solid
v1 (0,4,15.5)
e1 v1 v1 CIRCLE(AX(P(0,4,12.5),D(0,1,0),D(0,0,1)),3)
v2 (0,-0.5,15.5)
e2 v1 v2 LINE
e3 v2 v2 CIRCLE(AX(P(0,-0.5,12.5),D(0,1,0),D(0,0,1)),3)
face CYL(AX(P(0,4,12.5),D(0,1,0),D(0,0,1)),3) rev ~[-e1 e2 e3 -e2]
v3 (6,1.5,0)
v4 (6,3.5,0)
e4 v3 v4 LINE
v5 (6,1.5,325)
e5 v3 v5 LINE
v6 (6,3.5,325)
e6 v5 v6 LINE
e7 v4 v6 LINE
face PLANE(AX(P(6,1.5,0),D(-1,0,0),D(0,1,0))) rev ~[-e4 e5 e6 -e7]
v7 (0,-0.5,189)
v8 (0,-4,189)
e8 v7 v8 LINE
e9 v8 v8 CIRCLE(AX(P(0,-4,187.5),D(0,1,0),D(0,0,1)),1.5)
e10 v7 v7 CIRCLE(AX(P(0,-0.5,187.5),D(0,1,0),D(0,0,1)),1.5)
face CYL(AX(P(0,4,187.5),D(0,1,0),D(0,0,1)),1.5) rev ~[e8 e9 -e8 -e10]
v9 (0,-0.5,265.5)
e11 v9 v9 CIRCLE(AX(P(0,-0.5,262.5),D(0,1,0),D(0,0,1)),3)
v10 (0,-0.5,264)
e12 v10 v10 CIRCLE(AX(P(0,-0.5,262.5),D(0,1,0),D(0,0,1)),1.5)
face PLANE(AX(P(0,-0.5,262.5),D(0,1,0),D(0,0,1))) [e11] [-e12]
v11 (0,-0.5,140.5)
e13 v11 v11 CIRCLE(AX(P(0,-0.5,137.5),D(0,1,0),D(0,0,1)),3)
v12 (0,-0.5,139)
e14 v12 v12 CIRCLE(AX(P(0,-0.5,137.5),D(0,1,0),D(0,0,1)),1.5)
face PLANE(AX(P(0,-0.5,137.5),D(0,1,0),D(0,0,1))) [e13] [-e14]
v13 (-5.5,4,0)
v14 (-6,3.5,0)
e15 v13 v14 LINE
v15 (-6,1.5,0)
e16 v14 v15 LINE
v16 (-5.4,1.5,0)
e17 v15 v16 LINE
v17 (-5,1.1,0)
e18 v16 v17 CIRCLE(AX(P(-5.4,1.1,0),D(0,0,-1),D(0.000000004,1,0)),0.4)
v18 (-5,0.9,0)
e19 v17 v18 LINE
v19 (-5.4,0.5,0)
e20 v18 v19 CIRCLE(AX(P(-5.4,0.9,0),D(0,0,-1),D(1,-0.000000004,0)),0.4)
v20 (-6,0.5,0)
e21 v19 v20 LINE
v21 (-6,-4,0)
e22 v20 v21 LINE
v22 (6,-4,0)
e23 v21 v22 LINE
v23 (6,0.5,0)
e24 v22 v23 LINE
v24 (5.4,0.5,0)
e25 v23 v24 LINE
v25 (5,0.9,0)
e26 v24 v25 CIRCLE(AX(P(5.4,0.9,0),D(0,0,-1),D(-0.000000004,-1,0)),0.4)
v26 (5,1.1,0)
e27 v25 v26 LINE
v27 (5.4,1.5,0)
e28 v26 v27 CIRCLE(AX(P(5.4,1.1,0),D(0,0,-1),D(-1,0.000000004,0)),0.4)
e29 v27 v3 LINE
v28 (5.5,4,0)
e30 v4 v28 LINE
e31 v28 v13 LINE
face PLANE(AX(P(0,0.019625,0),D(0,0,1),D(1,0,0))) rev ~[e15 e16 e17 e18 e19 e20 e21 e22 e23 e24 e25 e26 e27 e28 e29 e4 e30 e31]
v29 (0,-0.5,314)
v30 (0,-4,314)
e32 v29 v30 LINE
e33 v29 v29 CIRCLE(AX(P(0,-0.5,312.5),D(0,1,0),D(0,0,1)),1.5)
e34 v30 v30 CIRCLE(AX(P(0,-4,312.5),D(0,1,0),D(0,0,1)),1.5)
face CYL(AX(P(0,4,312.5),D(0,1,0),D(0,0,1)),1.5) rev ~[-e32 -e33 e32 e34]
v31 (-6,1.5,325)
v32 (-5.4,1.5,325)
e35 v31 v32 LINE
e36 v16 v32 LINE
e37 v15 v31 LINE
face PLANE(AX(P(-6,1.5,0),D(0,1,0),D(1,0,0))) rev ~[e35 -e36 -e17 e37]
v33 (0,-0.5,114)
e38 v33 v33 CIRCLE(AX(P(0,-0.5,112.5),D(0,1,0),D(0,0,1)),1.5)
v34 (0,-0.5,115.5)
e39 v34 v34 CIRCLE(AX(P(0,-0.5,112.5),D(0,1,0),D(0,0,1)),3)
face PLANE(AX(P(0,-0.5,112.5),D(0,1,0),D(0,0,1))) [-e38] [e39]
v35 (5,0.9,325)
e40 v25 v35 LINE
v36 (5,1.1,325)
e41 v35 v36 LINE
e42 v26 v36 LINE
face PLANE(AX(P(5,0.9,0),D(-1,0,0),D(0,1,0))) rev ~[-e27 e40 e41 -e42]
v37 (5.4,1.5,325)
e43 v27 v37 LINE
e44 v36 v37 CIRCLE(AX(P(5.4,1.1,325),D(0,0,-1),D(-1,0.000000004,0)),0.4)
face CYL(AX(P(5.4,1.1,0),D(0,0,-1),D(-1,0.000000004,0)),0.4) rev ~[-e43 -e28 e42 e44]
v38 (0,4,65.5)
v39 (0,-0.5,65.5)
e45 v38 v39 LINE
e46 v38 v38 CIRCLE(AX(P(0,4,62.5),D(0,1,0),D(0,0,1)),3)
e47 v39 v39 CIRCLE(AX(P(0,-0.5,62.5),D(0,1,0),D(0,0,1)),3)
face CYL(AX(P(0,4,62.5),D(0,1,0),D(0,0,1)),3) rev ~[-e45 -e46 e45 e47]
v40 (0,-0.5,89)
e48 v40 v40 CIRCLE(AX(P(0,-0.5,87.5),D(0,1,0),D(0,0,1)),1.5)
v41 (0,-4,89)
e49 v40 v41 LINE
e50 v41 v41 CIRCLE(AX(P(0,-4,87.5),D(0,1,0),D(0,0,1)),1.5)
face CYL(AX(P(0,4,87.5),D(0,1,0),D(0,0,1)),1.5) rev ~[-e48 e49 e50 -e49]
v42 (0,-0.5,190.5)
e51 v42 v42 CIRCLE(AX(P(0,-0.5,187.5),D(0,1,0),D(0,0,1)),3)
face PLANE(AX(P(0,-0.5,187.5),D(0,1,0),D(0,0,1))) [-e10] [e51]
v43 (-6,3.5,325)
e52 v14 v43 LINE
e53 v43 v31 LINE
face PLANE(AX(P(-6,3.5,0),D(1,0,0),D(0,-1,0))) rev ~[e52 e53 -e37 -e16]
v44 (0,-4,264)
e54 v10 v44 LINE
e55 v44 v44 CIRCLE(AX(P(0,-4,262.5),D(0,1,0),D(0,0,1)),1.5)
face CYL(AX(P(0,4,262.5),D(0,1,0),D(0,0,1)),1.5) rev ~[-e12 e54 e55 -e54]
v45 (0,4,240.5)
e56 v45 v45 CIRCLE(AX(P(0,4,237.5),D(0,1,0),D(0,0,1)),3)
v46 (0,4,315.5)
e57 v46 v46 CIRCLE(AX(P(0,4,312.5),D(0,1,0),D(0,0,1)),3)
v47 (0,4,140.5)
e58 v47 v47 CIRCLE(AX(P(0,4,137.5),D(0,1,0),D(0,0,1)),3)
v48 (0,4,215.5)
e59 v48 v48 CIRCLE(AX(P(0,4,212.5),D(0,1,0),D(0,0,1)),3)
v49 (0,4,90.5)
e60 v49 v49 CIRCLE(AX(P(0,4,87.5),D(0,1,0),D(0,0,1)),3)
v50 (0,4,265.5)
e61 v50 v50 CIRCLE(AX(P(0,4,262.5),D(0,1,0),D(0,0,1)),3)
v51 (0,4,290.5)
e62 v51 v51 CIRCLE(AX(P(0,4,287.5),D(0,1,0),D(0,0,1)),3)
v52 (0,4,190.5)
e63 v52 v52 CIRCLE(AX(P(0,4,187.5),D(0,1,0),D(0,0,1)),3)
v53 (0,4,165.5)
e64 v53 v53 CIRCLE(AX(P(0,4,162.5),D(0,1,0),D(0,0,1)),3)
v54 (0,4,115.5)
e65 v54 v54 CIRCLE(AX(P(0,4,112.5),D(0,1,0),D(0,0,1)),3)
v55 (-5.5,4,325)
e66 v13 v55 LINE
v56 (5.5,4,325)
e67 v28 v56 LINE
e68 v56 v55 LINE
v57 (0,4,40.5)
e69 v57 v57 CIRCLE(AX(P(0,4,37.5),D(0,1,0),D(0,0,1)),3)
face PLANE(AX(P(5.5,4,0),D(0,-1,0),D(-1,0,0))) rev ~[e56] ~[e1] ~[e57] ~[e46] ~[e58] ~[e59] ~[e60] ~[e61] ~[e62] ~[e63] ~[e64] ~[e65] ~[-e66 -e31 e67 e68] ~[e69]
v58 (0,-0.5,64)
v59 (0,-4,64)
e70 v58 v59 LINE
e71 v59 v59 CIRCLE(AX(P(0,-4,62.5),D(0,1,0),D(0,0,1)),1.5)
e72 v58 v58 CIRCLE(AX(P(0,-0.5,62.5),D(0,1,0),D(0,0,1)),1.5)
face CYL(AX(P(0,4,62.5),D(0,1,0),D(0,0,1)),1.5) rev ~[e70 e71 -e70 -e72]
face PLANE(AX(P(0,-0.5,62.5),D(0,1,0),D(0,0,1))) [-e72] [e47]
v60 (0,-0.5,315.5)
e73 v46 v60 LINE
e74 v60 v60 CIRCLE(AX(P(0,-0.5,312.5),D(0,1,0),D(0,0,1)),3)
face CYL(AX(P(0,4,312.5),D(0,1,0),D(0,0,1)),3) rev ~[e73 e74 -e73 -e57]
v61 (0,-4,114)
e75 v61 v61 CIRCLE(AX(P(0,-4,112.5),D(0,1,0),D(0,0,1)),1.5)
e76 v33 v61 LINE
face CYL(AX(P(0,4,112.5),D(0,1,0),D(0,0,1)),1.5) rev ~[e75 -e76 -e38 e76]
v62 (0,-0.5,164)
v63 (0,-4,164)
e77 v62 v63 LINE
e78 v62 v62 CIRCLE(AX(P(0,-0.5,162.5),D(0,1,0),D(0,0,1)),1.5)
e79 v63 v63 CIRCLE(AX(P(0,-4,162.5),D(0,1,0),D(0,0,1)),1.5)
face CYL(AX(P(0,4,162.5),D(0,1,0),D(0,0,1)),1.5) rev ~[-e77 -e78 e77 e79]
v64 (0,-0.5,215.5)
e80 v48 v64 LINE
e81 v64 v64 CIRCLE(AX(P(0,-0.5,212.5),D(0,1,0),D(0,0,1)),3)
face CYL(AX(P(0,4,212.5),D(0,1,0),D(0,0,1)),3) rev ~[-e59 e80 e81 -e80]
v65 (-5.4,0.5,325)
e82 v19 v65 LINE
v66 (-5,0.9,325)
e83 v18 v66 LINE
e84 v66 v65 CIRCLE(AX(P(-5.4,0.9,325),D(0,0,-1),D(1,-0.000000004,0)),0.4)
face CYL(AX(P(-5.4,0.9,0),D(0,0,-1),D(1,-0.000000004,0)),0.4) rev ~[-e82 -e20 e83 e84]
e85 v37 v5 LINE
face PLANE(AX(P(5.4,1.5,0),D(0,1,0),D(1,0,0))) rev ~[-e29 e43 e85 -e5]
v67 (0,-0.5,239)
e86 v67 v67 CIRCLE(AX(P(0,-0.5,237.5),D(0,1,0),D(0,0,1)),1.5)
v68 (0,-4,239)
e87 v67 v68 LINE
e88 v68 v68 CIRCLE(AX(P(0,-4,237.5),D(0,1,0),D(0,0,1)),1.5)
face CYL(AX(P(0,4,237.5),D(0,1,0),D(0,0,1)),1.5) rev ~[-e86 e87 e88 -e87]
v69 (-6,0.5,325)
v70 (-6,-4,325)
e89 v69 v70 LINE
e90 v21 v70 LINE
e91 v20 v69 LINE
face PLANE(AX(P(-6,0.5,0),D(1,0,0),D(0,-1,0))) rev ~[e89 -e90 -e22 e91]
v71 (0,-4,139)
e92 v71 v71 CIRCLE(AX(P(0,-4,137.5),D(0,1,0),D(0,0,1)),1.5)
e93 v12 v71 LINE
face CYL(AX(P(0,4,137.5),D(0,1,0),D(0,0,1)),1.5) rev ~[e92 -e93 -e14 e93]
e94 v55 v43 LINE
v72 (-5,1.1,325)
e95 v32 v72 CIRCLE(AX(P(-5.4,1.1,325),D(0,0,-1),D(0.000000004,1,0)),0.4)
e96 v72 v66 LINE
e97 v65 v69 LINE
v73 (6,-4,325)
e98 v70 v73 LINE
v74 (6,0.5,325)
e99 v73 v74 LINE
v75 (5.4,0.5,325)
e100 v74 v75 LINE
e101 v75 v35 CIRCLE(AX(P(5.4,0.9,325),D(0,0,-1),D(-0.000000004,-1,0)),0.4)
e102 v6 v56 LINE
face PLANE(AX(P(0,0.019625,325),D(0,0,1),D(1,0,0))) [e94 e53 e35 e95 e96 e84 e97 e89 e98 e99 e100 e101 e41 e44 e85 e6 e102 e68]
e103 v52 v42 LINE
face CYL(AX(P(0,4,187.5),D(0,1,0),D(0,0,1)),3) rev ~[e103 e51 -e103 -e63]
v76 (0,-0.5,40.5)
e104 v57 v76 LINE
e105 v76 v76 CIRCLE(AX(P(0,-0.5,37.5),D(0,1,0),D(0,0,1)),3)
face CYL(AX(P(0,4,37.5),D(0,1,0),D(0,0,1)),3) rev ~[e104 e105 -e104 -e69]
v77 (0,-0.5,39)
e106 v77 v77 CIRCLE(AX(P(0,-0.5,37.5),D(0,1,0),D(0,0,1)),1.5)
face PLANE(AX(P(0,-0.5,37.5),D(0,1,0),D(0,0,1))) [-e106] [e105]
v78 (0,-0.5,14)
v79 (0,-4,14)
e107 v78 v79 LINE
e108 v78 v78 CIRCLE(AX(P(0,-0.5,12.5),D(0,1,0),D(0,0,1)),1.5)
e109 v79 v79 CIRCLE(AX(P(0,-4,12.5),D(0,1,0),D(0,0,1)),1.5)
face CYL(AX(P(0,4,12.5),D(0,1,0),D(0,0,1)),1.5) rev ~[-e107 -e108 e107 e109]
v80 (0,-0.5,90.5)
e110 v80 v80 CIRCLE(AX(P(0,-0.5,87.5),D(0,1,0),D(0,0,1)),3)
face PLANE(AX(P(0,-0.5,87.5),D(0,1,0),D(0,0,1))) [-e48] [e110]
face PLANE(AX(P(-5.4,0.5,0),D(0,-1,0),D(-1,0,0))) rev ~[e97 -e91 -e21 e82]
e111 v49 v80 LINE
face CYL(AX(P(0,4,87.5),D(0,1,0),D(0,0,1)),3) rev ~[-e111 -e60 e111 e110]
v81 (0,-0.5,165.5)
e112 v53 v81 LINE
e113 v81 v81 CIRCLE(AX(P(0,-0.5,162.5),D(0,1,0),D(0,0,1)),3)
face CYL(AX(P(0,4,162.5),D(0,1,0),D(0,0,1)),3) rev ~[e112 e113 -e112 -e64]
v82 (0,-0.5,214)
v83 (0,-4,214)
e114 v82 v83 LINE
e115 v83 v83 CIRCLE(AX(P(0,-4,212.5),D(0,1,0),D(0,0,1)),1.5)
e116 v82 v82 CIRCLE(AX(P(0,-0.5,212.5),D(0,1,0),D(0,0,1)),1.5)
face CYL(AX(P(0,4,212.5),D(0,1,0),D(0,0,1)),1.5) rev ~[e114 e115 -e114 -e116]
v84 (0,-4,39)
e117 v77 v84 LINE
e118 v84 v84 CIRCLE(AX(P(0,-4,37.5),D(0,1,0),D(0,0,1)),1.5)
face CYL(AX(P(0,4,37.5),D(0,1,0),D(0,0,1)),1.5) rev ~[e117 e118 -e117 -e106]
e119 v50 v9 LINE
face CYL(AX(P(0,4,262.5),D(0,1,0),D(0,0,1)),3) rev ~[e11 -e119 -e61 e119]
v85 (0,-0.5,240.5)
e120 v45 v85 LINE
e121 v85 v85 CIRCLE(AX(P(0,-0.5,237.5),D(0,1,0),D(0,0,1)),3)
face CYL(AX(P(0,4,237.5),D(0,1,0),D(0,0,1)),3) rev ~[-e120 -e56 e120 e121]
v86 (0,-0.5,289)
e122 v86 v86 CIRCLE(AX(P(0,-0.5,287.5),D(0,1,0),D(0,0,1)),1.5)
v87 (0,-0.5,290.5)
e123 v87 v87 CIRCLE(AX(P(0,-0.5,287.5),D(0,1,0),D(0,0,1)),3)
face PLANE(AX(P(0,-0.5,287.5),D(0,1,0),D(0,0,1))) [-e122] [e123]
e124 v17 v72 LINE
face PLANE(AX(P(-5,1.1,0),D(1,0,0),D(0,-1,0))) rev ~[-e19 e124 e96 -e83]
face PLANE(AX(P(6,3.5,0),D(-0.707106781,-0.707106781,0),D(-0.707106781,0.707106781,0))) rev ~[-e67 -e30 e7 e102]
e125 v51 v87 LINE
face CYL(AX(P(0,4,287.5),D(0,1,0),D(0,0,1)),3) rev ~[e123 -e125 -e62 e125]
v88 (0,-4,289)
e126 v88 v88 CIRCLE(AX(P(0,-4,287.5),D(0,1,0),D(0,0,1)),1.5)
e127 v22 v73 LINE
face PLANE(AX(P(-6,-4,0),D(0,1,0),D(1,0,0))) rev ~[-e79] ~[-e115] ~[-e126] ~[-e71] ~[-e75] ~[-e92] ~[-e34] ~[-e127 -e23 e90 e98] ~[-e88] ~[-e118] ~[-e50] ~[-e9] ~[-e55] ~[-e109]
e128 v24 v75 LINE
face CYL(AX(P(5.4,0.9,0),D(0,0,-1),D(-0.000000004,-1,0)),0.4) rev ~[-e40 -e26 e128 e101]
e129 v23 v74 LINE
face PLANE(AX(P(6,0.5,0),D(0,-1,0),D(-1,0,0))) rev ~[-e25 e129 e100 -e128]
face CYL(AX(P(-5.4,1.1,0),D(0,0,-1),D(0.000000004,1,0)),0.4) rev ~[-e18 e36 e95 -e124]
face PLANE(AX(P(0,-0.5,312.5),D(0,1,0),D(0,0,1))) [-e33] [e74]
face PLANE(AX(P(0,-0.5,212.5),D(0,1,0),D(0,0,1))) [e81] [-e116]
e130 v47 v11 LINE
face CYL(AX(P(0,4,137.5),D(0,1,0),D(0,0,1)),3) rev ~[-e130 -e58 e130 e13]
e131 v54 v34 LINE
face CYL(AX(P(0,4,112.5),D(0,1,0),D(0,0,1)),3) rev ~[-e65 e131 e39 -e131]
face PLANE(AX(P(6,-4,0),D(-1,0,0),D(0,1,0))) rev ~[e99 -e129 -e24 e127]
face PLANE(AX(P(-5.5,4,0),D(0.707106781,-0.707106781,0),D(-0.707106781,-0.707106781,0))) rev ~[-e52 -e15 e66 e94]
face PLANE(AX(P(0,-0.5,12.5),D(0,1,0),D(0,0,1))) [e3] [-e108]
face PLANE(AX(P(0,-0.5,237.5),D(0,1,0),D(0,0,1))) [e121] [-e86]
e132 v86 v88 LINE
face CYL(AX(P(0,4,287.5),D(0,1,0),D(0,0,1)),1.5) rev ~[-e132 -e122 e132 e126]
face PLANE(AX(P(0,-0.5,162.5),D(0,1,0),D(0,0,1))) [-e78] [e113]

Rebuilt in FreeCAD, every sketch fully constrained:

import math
import FreeCAD as App
import Part
import Sketcher

doc = App.newDocument("Part")
params = doc.addObject("Spreadsheet::Sheet", "Params")
for row, (alias, value) in enumerate([
    ("sketch1_radius", "0.4 mm"),
    ("sketch1_width", "12 mm"),
    ("sketch1_width2", "11 mm"),
    ("sketch1_height", "2 mm"),
    ("sketch1_width3", "0.6 mm"),
    ("pad1_length", "325 mm"),
    ("sketch2_diameter", "3 mm"),
    ("pocket1_length", "14 mm"),
    ("sketch3_diameter", "6 mm"),
    ("pocket2_length", "4.5 mm"),
    ("linearpattern_pitch", "25 mm"),
], start=1):
    params.set(f"A{row}", alias)
    params.set(f"B{row}", "=" + value)
    params.setAlias(f"B{row}", alias)

body = doc.addObject("PartDesign::Body", "Body")

sketch1 = body.newObject("Sketcher::SketchObject", "Sketch")
sketch1.AttachmentSupport = (doc.getObject("XY_Plane"), [""])
sketch1.MapMode = "FlatFace"
sketch1.addGeometry(Part.LineSegment(App.Vector(-6, 1.5, 0), App.Vector(-5.4, 1.5, 0)), False)
sketch1.addGeometry(Part.ArcOfCircle(Part.Circle(App.Vector(-5.4, 1.1, 0), App.Vector(0, 0, 1), 0.4), math.radians(0), math.radians(90)), False)
sketch1.addGeometry(Part.LineSegment(App.Vector(-5, 1.1, 0), App.Vector(-5, 0.9, 0)), False)
sketch1.addGeometry(Part.ArcOfCircle(Part.Circle(App.Vector(-5.4, 0.9, 0), App.Vector(0, 0, 1), 0.4), math.radians(-90), math.radians(0)), False)
sketch1.addGeometry(Part.LineSegment(App.Vector(-5.4, 0.5, 0), App.Vector(-6, 0.5, 0)), False)
sketch1.addGeometry(Part.LineSegment(App.Vector(-6, 0.5, 0), App.Vector(-6, -4, 0)), False)
sketch1.addGeometry(Part.LineSegment(App.Vector(-6, -4, 0), App.Vector(6, -4, 0)), False)
sketch1.addGeometry(Part.LineSegment(App.Vector(6, -4, 0), App.Vector(6, 0.5, 0)), False)
sketch1.addGeometry(Part.LineSegment(App.Vector(6, 0.5, 0), App.Vector(5.4, 0.5, 0)), False)
sketch1.addGeometry(Part.ArcOfCircle(Part.Circle(App.Vector(5.4, 0.9, 0), App.Vector(0, 0, 1), 0.4), math.radians(-180), math.radians(-90)), False)
sketch1.addGeometry(Part.LineSegment(App.Vector(5, 0.9, 0), App.Vector(5, 1.1, 0)), False)
sketch1.addGeometry(Part.ArcOfCircle(Part.Circle(App.Vector(5.4, 1.1, 0), App.Vector(0, 0, 1), 0.4), math.radians(90), math.radians(180)), False)
sketch1.addGeometry(Part.LineSegment(App.Vector(5.4, 1.5, 0), App.Vector(6, 1.5, 0)), False)
sketch1.addGeometry(Part.LineSegment(App.Vector(6, 1.5, 0), App.Vector(6, 3.5, 0)), False)
sketch1.addGeometry(Part.LineSegment(App.Vector(6, 3.5, 0), App.Vector(5.5, 4, 0)), False)
sketch1.addGeometry(Part.LineSegment(App.Vector(5.5, 4, 0), App.Vector(-5.5, 4, 0)), False)
sketch1.addGeometry(Part.LineSegment(App.Vector(-5.5, 4, 0), App.Vector(-6, 3.5, 0)), False)
sketch1.addGeometry(Part.LineSegment(App.Vector(-6, 3.5, 0), App.Vector(-6, 1.5, 0)), False)
sketch1.addConstraint(Sketcher.Constraint("Tangent", 0, 2, 1, 2))
sketch1.addConstraint(Sketcher.Constraint("Tangent", 1, 1, 2, 1))
sketch1.addConstraint(Sketcher.Constraint("Tangent", 2, 2, 3, 2))
sketch1.addConstraint(Sketcher.Constraint("Tangent", 3, 1, 4, 1))
sketch1.addConstraint(Sketcher.Constraint("Coincident", 4, 2, 5, 1))
sketch1.addConstraint(Sketcher.Constraint("Coincident", 5, 2, 6, 1))
sketch1.addConstraint(Sketcher.Constraint("Coincident", 6, 2, 7, 1))
sketch1.addConstraint(Sketcher.Constraint("Coincident", 7, 2, 8, 1))
sketch1.addConstraint(Sketcher.Constraint("Tangent", 8, 2, 9, 2))
sketch1.addConstraint(Sketcher.Constraint("Tangent", 9, 1, 10, 1))
sketch1.addConstraint(Sketcher.Constraint("Tangent", 10, 2, 11, 2))
sketch1.addConstraint(Sketcher.Constraint("Tangent", 11, 1, 12, 1))
sketch1.addConstraint(Sketcher.Constraint("Coincident", 12, 2, 13, 1))
sketch1.addConstraint(Sketcher.Constraint("Coincident", 13, 2, 14, 1))
sketch1.addConstraint(Sketcher.Constraint("Coincident", 14, 2, 15, 1))
sketch1.addConstraint(Sketcher.Constraint("Coincident", 15, 2, 16, 1))
sketch1.addConstraint(Sketcher.Constraint("Coincident", 16, 2, 17, 1))
sketch1.addConstraint(Sketcher.Constraint("Coincident", 17, 2, 0, 1))
sketch1.addConstraint(Sketcher.Constraint("Horizontal", 0))
sketch1.addConstraint(Sketcher.Constraint("Vertical", 2))
sketch1.addConstraint(Sketcher.Constraint("Horizontal", 4))
sketch1.addConstraint(Sketcher.Constraint("Vertical", 5))
sketch1.addConstraint(Sketcher.Constraint("Horizontal", 6))
sketch1.addConstraint(Sketcher.Constraint("Vertical", 7))
sketch1.addConstraint(Sketcher.Constraint("Horizontal", 8))
sketch1.addConstraint(Sketcher.Constraint("Vertical", 10))
sketch1.addConstraint(Sketcher.Constraint("Horizontal", 12))
sketch1.addConstraint(Sketcher.Constraint("Vertical", 13))
sketch1.addConstraint(Sketcher.Constraint("Horizontal", 15))
sketch1.addConstraint(Sketcher.Constraint("Vertical", 17))
sketch1.addConstraint(Sketcher.Constraint("Equal", 1, 3))
sketch1.addConstraint(Sketcher.Constraint("Equal", 3, 9))
sketch1.addConstraint(Sketcher.Constraint("Equal", 9, 11))
sketch1.addConstraint(Sketcher.Constraint("Symmetric", 3, 3, 9, 3, -2))
sketch1.addConstraint(Sketcher.Constraint("Symmetric", 13, 2, 16, 2, -2))
sketch1.addConstraint(Sketcher.Constraint("Perpendicular", 14, 16))
sketch1.addConstraint(Sketcher.Constraint("Horizontal", 1, 3, 11, 3))
sketch1.addConstraint(Sketcher.Constraint("Vertical", 7, 2, 12, 2))
sketch1.addConstraint(Sketcher.Constraint("Vertical", 5, 2, 16, 2))
sketch1.addConstraint(Sketcher.Constraint("Equal", 14, 16))
sketch1.addConstraint(Sketcher.Constraint("Radius", 1, 0.4))
sketch1.addConstraint(Sketcher.Constraint("DistanceX", 6, 1, 6, 2, 12.0))
sketch1.addConstraint(Sketcher.Constraint("DistanceX", 15, 2, 15, 1, 11.0))
sketch1.addConstraint(Sketcher.Constraint("DistanceY", 13, 1, 13, 2, 2.0))
sketch1.addConstraint(Sketcher.Constraint("DistanceX", 0, 1, 0, 2, 0.6))
sketch1.addConstraint(Sketcher.Constraint("DistanceY", 2, 2, 2, 1, 0.2))
sketch1.addConstraint(Sketcher.Constraint("DistanceY", 5, 2, 5, 1, 4.5))
sketch1.addConstraint(Sketcher.Constraint("DistanceY", 5, 2, -1, 1, 4.0))
sketch1.setExpression("Constraints[40]", "Params.sketch1_radius")
sketch1.setExpression("Constraints[41]", "Params.sketch1_width")
sketch1.setExpression("Constraints[42]", "Params.sketch1_width2")
sketch1.setExpression("Constraints[43]", "Params.sketch1_height")
sketch1.setExpression("Constraints[44]", "Params.sketch1_width3")
pad1 = body.newObject("PartDesign::Pad", "Pad")
pad1.Profile = sketch1
pad1.setExpression("Length", "Params.pad1_length")

sketch2 = body.newObject("Sketcher::SketchObject", "Sketch001")
sketch2.AttachmentSupport = (doc.getObject("XZ_Plane"), [""])
sketch2.MapMode = "FlatFace"
sketch2.AttachmentOffset = App.Placement(App.Vector(0, 0, -4), App.Rotation())
sketch2.addGeometry(Part.Circle(App.Vector(0, 312.5, 0), App.Vector(0, 0, 1), 1.5), False)
sketch2.addConstraint(Sketcher.Constraint("PointOnObject", 0, 3, -2))
sketch2.addConstraint(Sketcher.Constraint("Diameter", 0, 3.0))
sketch2.addConstraint(Sketcher.Constraint("DistanceY", -1, 1, 0, 3, 312.5))
sketch2.setExpression("Constraints[1]", "Params.sketch2_diameter")
pocket1 = body.newObject("PartDesign::Pocket", "Pocket")
pocket1.Profile = sketch2
pocket1.setExpression("Length", "Params.pocket1_length")
pocket1.Reversed = True

sketch3 = body.newObject("Sketcher::SketchObject", "Sketch002")
sketch3.AttachmentSupport = (doc.getObject("XZ_Plane"), [""])
sketch3.MapMode = "FlatFace"
sketch3.AttachmentOffset = App.Placement(App.Vector(0, 0, -4), App.Rotation())
sketch3.addGeometry(Part.Circle(App.Vector(0, 312.5, 0), App.Vector(0, 0, 1), 3), False)
sketch3.addConstraint(Sketcher.Constraint("PointOnObject", 0, 3, -2))
sketch3.addConstraint(Sketcher.Constraint("Diameter", 0, 6.0))
sketch3.addConstraint(Sketcher.Constraint("DistanceY", -1, 1, 0, 3, 312.5))
sketch3.setExpression("Constraints[1]", "Params.sketch3_diameter")
pocket2 = body.newObject("PartDesign::Pocket", "Pocket001")
pocket2.Profile = sketch3
pocket2.setExpression("Length", "Params.pocket2_length")
pocket2.Reversed = True
doc.recompute()

linearpattern = body.newObject("PartDesign::LinearPattern", "LinearPattern")
linearpattern.Originals = [pocket1, pocket2]
linearpattern.Direction = (doc.getObject("Z_Axis"), [""])
linearpattern.Mode = "offset"
linearpattern.setExpression("Offset", "Params.linearpattern_pitch")
linearpattern.Occurrences = 14
linearpattern.Reversed = True
body.Tip = linearpattern

doc.recompute()
